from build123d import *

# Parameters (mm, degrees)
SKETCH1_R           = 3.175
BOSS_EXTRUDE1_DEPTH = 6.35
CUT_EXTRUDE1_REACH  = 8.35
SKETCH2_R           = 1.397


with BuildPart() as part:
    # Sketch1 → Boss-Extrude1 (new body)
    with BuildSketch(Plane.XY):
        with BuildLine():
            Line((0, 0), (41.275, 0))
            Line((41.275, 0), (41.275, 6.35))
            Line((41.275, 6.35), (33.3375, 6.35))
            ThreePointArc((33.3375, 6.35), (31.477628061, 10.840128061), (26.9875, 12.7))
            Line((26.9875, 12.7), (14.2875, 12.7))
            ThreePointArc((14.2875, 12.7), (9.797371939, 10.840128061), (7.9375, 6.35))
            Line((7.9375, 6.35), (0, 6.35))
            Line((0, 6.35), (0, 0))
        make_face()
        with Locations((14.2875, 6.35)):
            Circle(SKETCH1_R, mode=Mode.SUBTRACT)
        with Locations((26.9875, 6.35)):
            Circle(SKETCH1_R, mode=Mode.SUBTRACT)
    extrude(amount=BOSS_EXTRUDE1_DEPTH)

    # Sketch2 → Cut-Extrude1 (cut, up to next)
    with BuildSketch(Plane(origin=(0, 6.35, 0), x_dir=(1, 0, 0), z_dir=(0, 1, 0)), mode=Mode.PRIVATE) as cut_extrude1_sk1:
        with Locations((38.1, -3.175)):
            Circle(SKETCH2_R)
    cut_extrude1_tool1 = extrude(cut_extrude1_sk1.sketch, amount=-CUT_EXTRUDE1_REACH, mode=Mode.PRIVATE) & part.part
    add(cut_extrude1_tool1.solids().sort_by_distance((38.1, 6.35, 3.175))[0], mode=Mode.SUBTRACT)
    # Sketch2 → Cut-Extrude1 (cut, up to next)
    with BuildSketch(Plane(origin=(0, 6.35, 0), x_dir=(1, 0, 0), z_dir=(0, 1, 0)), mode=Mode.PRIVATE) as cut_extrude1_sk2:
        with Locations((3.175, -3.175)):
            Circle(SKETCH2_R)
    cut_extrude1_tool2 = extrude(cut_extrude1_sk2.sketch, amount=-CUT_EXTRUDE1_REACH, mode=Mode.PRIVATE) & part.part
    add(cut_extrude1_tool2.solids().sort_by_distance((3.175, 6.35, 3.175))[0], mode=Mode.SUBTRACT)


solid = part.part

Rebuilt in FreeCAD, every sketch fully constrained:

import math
import FreeCAD as App
import Part
import Sketcher
from FreeCAD import Vector
Q = App.Units.Quantity

doc = App.newDocument("Part")
params = doc.addObject("Spreadsheet::Sheet", "Params")
for row, (alias, value) in enumerate([
    ("sketch1_diameter", "0.25 in"),
    ("sketch1_radius", "0.25 in"),
    ("sketch1_width", "0.5 in"),
    ("sketch1_height", "0.25 in"),
    ("sketch1_width2", "1.625 in"),
    ("pad1_length", "0.25 in"),
    ("sketch2_diameter", "0.11 in"),
    ("sketch3_diameter", "0.11 in"),
], start=1):
    params.set(f"A{row}", alias)
    params.set(f"B{row}", "=" + value)
    params.setAlias(f"B{row}", alias)

body = doc.addObject("PartDesign::Body", "Body")

# Sketch on XY plane
sketch1 = body.newObject("Sketcher::SketchObject", "Sketch")
sketch1.AttachmentSupport = (doc.getObject("XY_Plane"), [""])
sketch1.MapMode = "FlatFace"
sketch1.addGeometry(Part.LineSegment(Vector(0, 0, 0), Vector(41.3, 0, 0)), False)
sketch1.addGeometry(Part.LineSegment(Vector(41.3, 0, 0), Vector(41.3, 6.3, 0)), False)
sketch1.addGeometry(Part.LineSegment(Vector(41.3, 6.3, 0), Vector(33.3, 6.3, 0)), False)
sketch1.addGeometry(Part.ArcOfCircle(Part.Circle(Vector(27, 6.4, 0), Vector(0, 0, 1), 6.3), math.radians(0), math.radians(90)), False)
sketch1.addGeometry(Part.LineSegment(Vector(27, 12.7, 0), Vector(14.3, 12.7, 0)), False)
sketch1.addGeometry(Part.ArcOfCircle(Part.Circle(Vector(14.3, 6.4, 0), Vector(0, 0, 1), 6.3), math.radians(90), math.radians(180)), False)
sketch1.addGeometry(Part.LineSegment(Vector(7.9, 6.3, 0), Vector(0, 6.3, 0)), False)
sketch1.addGeometry(Part.LineSegment(Vector(0, 6.3, 0), Vector(0, 0, 0)), False)
sketch1.addGeometry(Part.Circle(Vector(14.3, 6.3, 0), Vector(0, 0, 1), 3.2), False)
sketch1.addGeometry(Part.Circle(Vector(27, 6.3, 0), Vector(0, 0, 1), 3.2), False)
sketch1.addConstraint(Sketcher.Constraint("Coincident", 0, 2, 1, 1))
sketch1.addConstraint(Sketcher.Constraint("Coincident", 1, 2, 2, 1))
sketch1.addConstraint(Sketcher.Constraint("Coincident", 2, 2, 3, 1))
sketch1.addConstraint(Sketcher.Constraint("Tangent", 3, 2, 4, 1))
sketch1.addConstraint(Sketcher.Constraint("Tangent", 4, 2, 5, 1))
sketch1.addConstraint(Sketcher.Constraint("Coincident", 5, 2, 6, 1))
sketch1.addConstraint(Sketcher.Constraint("Coincident", 6, 2, 7, 1))
sketch1.addConstraint(Sketcher.Constraint("Coincident", 7, 2, 0, 1))
sketch1.addConstraint(Sketcher.Constraint("Horizontal", 0))
sketch1.addConstraint(Sketcher.Constraint("Vertical", 1))
sketch1.addConstraint(Sketcher.Constraint("Horizontal", 2))
sketch1.addConstraint(Sketcher.Constraint("Horizontal", 4))
sketch1.addConstraint(Sketcher.Constraint("Horizontal", 6))
sketch1.addConstraint(Sketcher.Constraint("Vertical", 7))
sketch1.addConstraint(Sketcher.Constraint("Coincident", 7, 2, -1, 1))
sketch1.addConstraint(Sketcher.Constraint("Coincident", 8, 3, 5, 3))
sketch1.addConstraint(Sketcher.Constraint("Coincident", 9, 3, 3, 3))
sketch1.addConstraint(Sketcher.Constraint("Equal", 3, 5))
sketch1.addConstraint(Sketcher.Constraint("Equal", 8, 9))
sketch1.addConstraint(Sketcher.Constraint("Horizontal", 9, 3, 1, 2))
sketch1.addConstraint(Sketcher.Constraint("Horizontal", 2, 2, 5, 2))
sketch1.addConstraint(Sketcher.Constraint("Equal", 2, 6))
sketch1.addConstraint(Sketcher.Constraint("Diameter", 8, Q("0.25 in")))
sketch1.addConstraint(Sketcher.Constraint("Radius", 3, Q("0.25 in")))
sketch1.addConstraint(Sketcher.Constraint("DistanceX", 4, 2, 4, 1, Q("0.5 in")))
sketch1.addConstraint(Sketcher.Constraint("DistanceY", 1, 1, 1, 2, Q("0.25 in")))
sketch1.addConstraint(Sketcher.Constraint("DistanceX", 0, 1, 0, 2, Q("1.625 in")))
sketch1.setExpression("Constraints[22]", "Params.sketch1_diameter")
sketch1.setExpression("Constraints[23]", "Params.sketch1_radius")
sketch1.setExpression("Constraints[24]", "Params.sketch1_width")
sketch1.setExpression("Constraints[25]", "Params.sketch1_height")
sketch1.setExpression("Constraints[26]", "Params.sketch1_width2")
pad1 = body.newObject("PartDesign::Pad", "Pad")
pad1.Profile = sketch1
pad1.setExpression("Length", "Params.pad1_length")

# Sketch on XZ plane
sketch2 = body.newObject("Sketcher::SketchObject", "Sketch001")
sketch2.AttachmentSupport = (doc.getObject("XZ_Plane"), [""])
sketch2.MapMode = "FlatFace"
sketch2.AttachmentOffset = App.Placement(Vector(0, 0, -0.25 * 25.4), App.Rotation())
sketch2.addGeometry(Part.Circle(Vector(38.1, 3.2, 0), Vector(0, 0, 1), 1.4), False)
sketch2.addConstraint(Sketcher.Constraint("Diameter", 0, Q("0.11 in")))
sketch2.addConstraint(Sketcher.Constraint("DistanceX", -1, 1, 0, 3, Q("1.5 in")))
sketch2.addConstraint(Sketcher.Constraint("DistanceY", -1, 1, 0, 3, Q("0.125 in")))
sketch2.setExpression("Constraints[0]", "Params.sketch2_diameter")
pocket1 = body.newObject("PartDesign::Pocket", "Pocket")
pocket1.Profile = sketch2
pocket1.Type = "UpToFirst"
pocket1.Reversed = True

# Sketch on XZ plane
sketch3 = body.newObject("Sketcher::SketchObject", "Sketch002")
sketch3.AttachmentSupport = (doc.getObject("XZ_Plane"), [""])
sketch3.MapMode = "FlatFace"
sketch3.AttachmentOffset = App.Placement(Vector(0, 0, -0.25 * 25.4), App.Rotation())
sketch3.addGeometry(Part.Circle(Vector(3.2, 3.2, 0), Vector(0, 0, 1), 1.4), False)
sketch3.addConstraint(Sketcher.Constraint("Diameter", 0, Q("0.11 in")))
sketch3.addConstraint(Sketcher.Constraint("DistanceX", -1, 1, 0, 3, Q("0.125 in")))
sketch3.addConstraint(Sketcher.Constraint("DistanceY", -1, 1, 0, 3, Q("0.125 in")))
sketch3.setExpression("Constraints[0]", "Params.sketch3_diameter")
pocket2 = body.newObject("PartDesign::Pocket", "Pocket001")
pocket2.Profile = sketch3
pocket2.Type = "UpToFirst"
pocket2.Reversed = True

doc.recompute()
